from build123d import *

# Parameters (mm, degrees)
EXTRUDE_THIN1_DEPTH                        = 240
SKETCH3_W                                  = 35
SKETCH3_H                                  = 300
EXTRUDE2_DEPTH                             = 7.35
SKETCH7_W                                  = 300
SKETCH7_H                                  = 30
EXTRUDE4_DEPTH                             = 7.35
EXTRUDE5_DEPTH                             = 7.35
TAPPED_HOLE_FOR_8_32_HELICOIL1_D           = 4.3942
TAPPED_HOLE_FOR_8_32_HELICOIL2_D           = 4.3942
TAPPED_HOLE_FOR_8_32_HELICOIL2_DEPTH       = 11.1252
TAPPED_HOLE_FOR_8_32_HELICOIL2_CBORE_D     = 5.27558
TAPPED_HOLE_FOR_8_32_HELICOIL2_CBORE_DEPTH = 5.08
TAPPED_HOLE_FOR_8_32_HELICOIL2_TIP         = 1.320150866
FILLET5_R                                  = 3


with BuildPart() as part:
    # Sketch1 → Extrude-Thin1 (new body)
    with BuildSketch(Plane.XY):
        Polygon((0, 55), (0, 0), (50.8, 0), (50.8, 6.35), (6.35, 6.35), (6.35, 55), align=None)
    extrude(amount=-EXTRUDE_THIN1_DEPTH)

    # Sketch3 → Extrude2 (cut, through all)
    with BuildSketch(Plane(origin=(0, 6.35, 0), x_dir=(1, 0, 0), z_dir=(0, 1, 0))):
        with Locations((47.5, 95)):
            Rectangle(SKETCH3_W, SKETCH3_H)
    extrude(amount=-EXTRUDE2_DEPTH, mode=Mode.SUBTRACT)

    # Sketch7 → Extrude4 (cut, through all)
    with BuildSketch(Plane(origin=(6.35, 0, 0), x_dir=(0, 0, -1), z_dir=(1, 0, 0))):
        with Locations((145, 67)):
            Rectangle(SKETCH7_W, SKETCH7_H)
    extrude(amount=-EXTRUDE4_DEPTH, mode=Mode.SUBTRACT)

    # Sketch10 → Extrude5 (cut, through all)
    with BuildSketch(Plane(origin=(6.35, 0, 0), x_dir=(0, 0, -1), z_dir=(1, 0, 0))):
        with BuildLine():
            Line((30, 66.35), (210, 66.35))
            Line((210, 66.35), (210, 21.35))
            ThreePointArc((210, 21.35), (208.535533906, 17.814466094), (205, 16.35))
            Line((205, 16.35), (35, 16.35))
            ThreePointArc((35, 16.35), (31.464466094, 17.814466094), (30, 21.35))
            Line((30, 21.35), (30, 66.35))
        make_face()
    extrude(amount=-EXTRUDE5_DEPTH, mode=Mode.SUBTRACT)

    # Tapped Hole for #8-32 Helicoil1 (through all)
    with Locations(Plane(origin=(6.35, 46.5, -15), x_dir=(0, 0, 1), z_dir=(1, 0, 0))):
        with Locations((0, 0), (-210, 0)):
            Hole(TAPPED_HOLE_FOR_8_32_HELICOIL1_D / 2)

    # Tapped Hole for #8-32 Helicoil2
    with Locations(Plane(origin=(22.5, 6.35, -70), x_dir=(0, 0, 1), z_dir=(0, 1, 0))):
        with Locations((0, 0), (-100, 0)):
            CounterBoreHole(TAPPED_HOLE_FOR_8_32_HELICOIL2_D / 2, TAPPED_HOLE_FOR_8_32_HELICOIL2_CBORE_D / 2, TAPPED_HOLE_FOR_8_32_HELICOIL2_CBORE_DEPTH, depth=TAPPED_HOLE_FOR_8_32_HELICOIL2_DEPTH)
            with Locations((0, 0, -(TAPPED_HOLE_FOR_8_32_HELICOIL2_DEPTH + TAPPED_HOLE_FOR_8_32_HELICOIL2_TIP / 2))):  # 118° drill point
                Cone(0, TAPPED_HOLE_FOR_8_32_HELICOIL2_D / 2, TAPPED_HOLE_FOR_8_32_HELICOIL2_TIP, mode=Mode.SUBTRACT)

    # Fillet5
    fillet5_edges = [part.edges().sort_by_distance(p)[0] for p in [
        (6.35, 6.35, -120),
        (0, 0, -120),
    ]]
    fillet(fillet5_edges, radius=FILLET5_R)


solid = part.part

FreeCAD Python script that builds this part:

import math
import FreeCAD as App
import Part
import Sketcher
Q = App.Units.Quantity


def edges_at(feature, points):
    """Names of the edges that pass closest to the given points."""
    edges = feature.Shape.Edges
    near = lambda p: min(range(len(edges)), key=lambda i: edges[i].distToShape(Part.Vertex(*p))[0])
    return sorted({f"Edge{near(p) + 1}" for p in points})


def add_polygon(sketch, points):
    """Adds a closed chain of lines whose ends are joined by coincident constraints."""
    first, n = sketch.GeometryCount, len(points)
    for a, b in zip(points, points[1:] + points[:1]):
        sketch.addGeometry(Part.LineSegment(App.Vector(*a, 0), App.Vector(*b, 0)), False)
    for i in range(n):
        sketch.addConstraint(Sketcher.Constraint("Coincident", first + i, 2, first + (i + 1) % n, 1))

doc = App.newDocument("Part")
body = doc.addObject("PartDesign::Body", "Body")

# Sketch on XY plane
sketch1 = doc.addObject("Sketcher::SketchObject", "Sketch")
body.addObject(sketch1)
sketch1.AttachmentSupport = (doc.XY_Plane, [""])
sketch1.MapMode = "FlatFace"
add_polygon(sketch1, [(0, 55), (0, 0), (51, 0), (51, 6), (6, 6), (6, 55)])  # lines 0-5
sketch1.addConstraint([
    Sketcher.Constraint("Vertical", 0),
    Sketcher.Constraint("Horizontal", 1),
    Sketcher.Constraint("Vertical", 2),
    Sketcher.Constraint("Horizontal", 3),
    Sketcher.Constraint("Vertical", 4),
    Sketcher.Constraint("Horizontal", 5),
    Sketcher.Constraint("Coincident", 0, 2, -1, 1),
    Sketcher.Constraint("Equal", 5, 2),
    Sketcher.Constraint("DistanceY", 0, 2, 0, 1, Q("55 mm")),
    Sketcher.Constraint("DistanceX", 1, 1, 1, 2, Q("50.8 mm")),
    Sketcher.Constraint("DistanceX", 3, 2, 3, 1, Q("44.45 mm")),
])
pad1 = doc.addObject("PartDesign::Pad", "Pad")
body.addObject(pad1)
pad1.Profile = sketch1
pad1.Length = 240
pad1.Reversed = True

# Sketch on XZ plane
sketch2 = doc.addObject("Sketcher::SketchObject", "Sketch001")
body.addObject(sketch2)
sketch2.AttachmentSupport = (doc.XZ_Plane, [""])
sketch2.MapMode = "FlatFace"
sketch2.AttachmentOffset = App.Placement(App.Vector(0, 0, -6.35), App.Rotation())
add_polygon(sketch2, [(30, -245), (30, 55), (65, 55), (65, -245)])  # lines 0-3
sketch2.addConstraint([
    Sketcher.Constraint("Vertical", 0),
    Sketcher.Constraint("Horizontal", 1),
    Sketcher.Constraint("Vertical", 2),
    Sketcher.Constraint("Horizontal", 3),
    Sketcher.Constraint("DistanceX", 1, 1, 1, 2, Q("35 mm")),
    Sketcher.Constraint("DistanceY", 0, 1, 0, 2, Q("300 mm")),
    Sketcher.Constraint("DistanceX", -1, 1, 0, 2, Q("30 mm")),
    Sketcher.Constraint("DistanceY", -1, 1, 0, 2, Q("55 mm")),
])
pocket1 = doc.addObject("PartDesign::Pocket", "Pocket")
body.addObject(pocket1)
pocket1.Profile = sketch2
pocket1.Type = "ThroughAll"
pocket1.Reversed = True

# Sketch on YZ plane
sketch3 = doc.addObject("Sketcher::SketchObject", "Sketch002")
body.addObject(sketch3)
sketch3.AttachmentSupport = (doc.YZ_Plane, [""])
sketch3.MapMode = "FlatFace"
sketch3.AttachmentOffset = App.Placement(App.Vector(0, 0, 6.35), App.Rotation())
add_polygon(sketch3, [(82, 5), (52, 5), (52, -295), (82, -295)])  # lines 0-3
sketch3.addConstraint([
    Sketcher.Constraint("Horizontal", 0),
    Sketcher.Constraint("Vertical", 1),
    Sketcher.Constraint("Horizontal", 2),
    Sketcher.Constraint("Vertical", 3),
    Sketcher.Constraint("DistanceX", 0, 2, 0, 1, Q("30 mm")),
    Sketcher.Constraint("DistanceY", 1, 2, 1, 1, Q("300 mm")),
    Sketcher.Constraint("DistanceX", -1, 1, 0, 2, Q("52 mm")),
    Sketcher.Constraint("DistanceY", -1, 1, 0, 2, Q("5 mm")),
])
pocket2 = doc.addObject("PartDesign::Pocket", "Pocket001")
body.addObject(pocket2)
pocket2.Profile = sketch3
pocket2.Type = "ThroughAll"

# Sketch on YZ plane
sketch4 = doc.addObject("Sketcher::SketchObject", "Sketch003")
body.addObject(sketch4)
sketch4.AttachmentSupport = (doc.YZ_Plane, [""])
sketch4.MapMode = "FlatFace"
sketch4.AttachmentOffset = App.Placement(App.Vector(0, 0, 6.35), App.Rotation())
sketch4.addGeometry([
    Part.LineSegment(App.Vector(66, -210, 0), App.Vector(66, -30, 0)),  # 0
    Part.LineSegment(App.Vector(66, -30, 0), App.Vector(21, -30, 0)),  # 1
    Part.ArcOfCircle(Part.Circle(App.Vector(21, -35, 0), App.Vector(0, 0, 1), 5), math.radians(90), math.radians(180)),  # 2
    Part.LineSegment(App.Vector(16, -35, 0), App.Vector(16, -205, 0)),  # 3
    Part.ArcOfCircle(Part.Circle(App.Vector(21, -205, 0), App.Vector(0, 0, 1), 5), math.radians(180), math.radians(270)),  # 4
    Part.LineSegment(App.Vector(21, -210, 0), App.Vector(66, -210, 0)),  # 5
], False)
sketch4.addConstraint([
    Sketcher.Constraint("Coincident", 0, 2, 1, 1),
    Sketcher.Constraint("Tangent", 1, 2, 2, 1),
    Sketcher.Constraint("Tangent", 2, 2, 3, 1),
    Sketcher.Constraint("Tangent", 3, 2, 4, 1),
    Sketcher.Constraint("Tangent", 4, 2, 5, 1),
    Sketcher.Constraint("Coincident", 5, 2, 0, 1),
    Sketcher.Constraint("Vertical", 0),
    Sketcher.Constraint("Horizontal", 1),
    Sketcher.Constraint("Vertical", 3),
    Sketcher.Constraint("Horizontal", 5),
    Sketcher.Constraint("Equal", 2, 4),
    Sketcher.Constraint("Radius", 2, Q("5 mm")),
    Sketcher.Constraint("DistanceX", 1, 2, 1, 1, Q("45 mm")),
    Sketcher.Constraint("DistanceY", 0, 1, 0, 2, Q("180 mm")),
    Sketcher.Constraint("DistanceY", 2, 3, -1, 1, Q("35 mm")),
    Sketcher.Constraint("DistanceX", -1, 1, 2, 3, Q("21.35 mm")),
])
pocket3 = doc.addObject("PartDesign::Pocket", "Pocket002")
body.addObject(pocket3)
pocket3.Profile = sketch4
pocket3.Type = "ThroughAll"

# Sketch on YZ plane
sketch5 = doc.addObject("Sketcher::SketchObject", "Sketch004")
body.addObject(sketch5)
sketch5.AttachmentSupport = (doc.YZ_Plane, [""])
sketch5.MapMode = "FlatFace"
sketch5.AttachmentOffset = App.Placement(App.Vector(0, 0, 6.35), App.Rotation())
sketch5.addGeometry([
    Part.Circle(App.Vector(46.5, -15, 0), App.Vector(0, 0, 1), 2.2),
    Part.Circle(App.Vector(46.5, -225, 0), App.Vector(0, 0, 1), 2.2),
], False)
sketch5.addConstraint([
    Sketcher.Constraint("Equal", 0, 1),
    Sketcher.Constraint("Vertical", 0, 3, 1, 3),
    Sketcher.Constraint("DistanceY", 0, 3, -1, 1, Q("15 mm")),
    Sketcher.Constraint("DistanceY", 1, 3, -1, 1, Q("225 mm")),
    Sketcher.Constraint("Diameter", 0, Q("4.3942 mm")),
    Sketcher.Constraint("DistanceX", -1, 1, 0, 3, Q("46.5 mm")),
])
doc.recompute()
hole = doc.addObject("PartDesign::Hole", "Hole")
body.addObject(hole)
hole.Profile = sketch5
hole.ThreadType = "None"
hole.Diameter = 4.3942
hole.DepthType = "ThroughAll"

# Sketch on XZ plane
sketch6 = doc.addObject("Sketcher::SketchObject", "Sketch005")
body.addObject(sketch6)
sketch6.AttachmentSupport = (doc.XZ_Plane, [""])
sketch6.MapMode = "FlatFace"
sketch6.AttachmentOffset = App.Placement(App.Vector(0, 0, -6.35), App.Rotation())
sketch6.addGeometry([
    Part.Circle(App.Vector(22.5, -70, 0), App.Vector(0, 0, 1), 2.2),
    Part.Circle(App.Vector(22.5, -170, 0), App.Vector(0, 0, 1), 2.2),
], False)
sketch6.addConstraint([
    Sketcher.Constraint("Equal", 0, 1),
    Sketcher.Constraint("Vertical", 0, 3, 1, 3),
    Sketcher.Constraint("DistanceY", 0, 3, -1, 1, Q("70 mm")),
    Sketcher.Constraint("DistanceY", 1, 3, -1, 1, Q("170 mm")),
    Sketcher.Constraint("Diameter", 0, Q("4.3942 mm")),
    Sketcher.Constraint("DistanceX", -1, 1, 0, 3, Q("22.5 mm")),
])
doc.recompute()
hole2 = doc.addObject("PartDesign::Hole", "Hole001")
body.addObject(hole2)
hole2.Profile = sketch6
hole2.ThreadType = "None"
hole2.Diameter = 4.3942
hole2.DepthType = "Dimension"
hole2.Depth = 11.1252
hole2.DrillPoint = "Angled"
hole2.DrillPointAngle = 118
hole2.HoleCutType = "Counterbore"
hole2.HoleCutDiameter = 5.27558
hole2.HoleCutDepth = 5.08
hole2.Reversed = True
doc.recompute()

fillet = doc.addObject("PartDesign::Fillet", "Fillet")
body.addObject(fillet)
fillet.Base = (hole2, edges_at(hole2, [(6.35, 6.35, -120), (0, 0, -120)]))
fillet.Radius = 3

doc.recompute()
